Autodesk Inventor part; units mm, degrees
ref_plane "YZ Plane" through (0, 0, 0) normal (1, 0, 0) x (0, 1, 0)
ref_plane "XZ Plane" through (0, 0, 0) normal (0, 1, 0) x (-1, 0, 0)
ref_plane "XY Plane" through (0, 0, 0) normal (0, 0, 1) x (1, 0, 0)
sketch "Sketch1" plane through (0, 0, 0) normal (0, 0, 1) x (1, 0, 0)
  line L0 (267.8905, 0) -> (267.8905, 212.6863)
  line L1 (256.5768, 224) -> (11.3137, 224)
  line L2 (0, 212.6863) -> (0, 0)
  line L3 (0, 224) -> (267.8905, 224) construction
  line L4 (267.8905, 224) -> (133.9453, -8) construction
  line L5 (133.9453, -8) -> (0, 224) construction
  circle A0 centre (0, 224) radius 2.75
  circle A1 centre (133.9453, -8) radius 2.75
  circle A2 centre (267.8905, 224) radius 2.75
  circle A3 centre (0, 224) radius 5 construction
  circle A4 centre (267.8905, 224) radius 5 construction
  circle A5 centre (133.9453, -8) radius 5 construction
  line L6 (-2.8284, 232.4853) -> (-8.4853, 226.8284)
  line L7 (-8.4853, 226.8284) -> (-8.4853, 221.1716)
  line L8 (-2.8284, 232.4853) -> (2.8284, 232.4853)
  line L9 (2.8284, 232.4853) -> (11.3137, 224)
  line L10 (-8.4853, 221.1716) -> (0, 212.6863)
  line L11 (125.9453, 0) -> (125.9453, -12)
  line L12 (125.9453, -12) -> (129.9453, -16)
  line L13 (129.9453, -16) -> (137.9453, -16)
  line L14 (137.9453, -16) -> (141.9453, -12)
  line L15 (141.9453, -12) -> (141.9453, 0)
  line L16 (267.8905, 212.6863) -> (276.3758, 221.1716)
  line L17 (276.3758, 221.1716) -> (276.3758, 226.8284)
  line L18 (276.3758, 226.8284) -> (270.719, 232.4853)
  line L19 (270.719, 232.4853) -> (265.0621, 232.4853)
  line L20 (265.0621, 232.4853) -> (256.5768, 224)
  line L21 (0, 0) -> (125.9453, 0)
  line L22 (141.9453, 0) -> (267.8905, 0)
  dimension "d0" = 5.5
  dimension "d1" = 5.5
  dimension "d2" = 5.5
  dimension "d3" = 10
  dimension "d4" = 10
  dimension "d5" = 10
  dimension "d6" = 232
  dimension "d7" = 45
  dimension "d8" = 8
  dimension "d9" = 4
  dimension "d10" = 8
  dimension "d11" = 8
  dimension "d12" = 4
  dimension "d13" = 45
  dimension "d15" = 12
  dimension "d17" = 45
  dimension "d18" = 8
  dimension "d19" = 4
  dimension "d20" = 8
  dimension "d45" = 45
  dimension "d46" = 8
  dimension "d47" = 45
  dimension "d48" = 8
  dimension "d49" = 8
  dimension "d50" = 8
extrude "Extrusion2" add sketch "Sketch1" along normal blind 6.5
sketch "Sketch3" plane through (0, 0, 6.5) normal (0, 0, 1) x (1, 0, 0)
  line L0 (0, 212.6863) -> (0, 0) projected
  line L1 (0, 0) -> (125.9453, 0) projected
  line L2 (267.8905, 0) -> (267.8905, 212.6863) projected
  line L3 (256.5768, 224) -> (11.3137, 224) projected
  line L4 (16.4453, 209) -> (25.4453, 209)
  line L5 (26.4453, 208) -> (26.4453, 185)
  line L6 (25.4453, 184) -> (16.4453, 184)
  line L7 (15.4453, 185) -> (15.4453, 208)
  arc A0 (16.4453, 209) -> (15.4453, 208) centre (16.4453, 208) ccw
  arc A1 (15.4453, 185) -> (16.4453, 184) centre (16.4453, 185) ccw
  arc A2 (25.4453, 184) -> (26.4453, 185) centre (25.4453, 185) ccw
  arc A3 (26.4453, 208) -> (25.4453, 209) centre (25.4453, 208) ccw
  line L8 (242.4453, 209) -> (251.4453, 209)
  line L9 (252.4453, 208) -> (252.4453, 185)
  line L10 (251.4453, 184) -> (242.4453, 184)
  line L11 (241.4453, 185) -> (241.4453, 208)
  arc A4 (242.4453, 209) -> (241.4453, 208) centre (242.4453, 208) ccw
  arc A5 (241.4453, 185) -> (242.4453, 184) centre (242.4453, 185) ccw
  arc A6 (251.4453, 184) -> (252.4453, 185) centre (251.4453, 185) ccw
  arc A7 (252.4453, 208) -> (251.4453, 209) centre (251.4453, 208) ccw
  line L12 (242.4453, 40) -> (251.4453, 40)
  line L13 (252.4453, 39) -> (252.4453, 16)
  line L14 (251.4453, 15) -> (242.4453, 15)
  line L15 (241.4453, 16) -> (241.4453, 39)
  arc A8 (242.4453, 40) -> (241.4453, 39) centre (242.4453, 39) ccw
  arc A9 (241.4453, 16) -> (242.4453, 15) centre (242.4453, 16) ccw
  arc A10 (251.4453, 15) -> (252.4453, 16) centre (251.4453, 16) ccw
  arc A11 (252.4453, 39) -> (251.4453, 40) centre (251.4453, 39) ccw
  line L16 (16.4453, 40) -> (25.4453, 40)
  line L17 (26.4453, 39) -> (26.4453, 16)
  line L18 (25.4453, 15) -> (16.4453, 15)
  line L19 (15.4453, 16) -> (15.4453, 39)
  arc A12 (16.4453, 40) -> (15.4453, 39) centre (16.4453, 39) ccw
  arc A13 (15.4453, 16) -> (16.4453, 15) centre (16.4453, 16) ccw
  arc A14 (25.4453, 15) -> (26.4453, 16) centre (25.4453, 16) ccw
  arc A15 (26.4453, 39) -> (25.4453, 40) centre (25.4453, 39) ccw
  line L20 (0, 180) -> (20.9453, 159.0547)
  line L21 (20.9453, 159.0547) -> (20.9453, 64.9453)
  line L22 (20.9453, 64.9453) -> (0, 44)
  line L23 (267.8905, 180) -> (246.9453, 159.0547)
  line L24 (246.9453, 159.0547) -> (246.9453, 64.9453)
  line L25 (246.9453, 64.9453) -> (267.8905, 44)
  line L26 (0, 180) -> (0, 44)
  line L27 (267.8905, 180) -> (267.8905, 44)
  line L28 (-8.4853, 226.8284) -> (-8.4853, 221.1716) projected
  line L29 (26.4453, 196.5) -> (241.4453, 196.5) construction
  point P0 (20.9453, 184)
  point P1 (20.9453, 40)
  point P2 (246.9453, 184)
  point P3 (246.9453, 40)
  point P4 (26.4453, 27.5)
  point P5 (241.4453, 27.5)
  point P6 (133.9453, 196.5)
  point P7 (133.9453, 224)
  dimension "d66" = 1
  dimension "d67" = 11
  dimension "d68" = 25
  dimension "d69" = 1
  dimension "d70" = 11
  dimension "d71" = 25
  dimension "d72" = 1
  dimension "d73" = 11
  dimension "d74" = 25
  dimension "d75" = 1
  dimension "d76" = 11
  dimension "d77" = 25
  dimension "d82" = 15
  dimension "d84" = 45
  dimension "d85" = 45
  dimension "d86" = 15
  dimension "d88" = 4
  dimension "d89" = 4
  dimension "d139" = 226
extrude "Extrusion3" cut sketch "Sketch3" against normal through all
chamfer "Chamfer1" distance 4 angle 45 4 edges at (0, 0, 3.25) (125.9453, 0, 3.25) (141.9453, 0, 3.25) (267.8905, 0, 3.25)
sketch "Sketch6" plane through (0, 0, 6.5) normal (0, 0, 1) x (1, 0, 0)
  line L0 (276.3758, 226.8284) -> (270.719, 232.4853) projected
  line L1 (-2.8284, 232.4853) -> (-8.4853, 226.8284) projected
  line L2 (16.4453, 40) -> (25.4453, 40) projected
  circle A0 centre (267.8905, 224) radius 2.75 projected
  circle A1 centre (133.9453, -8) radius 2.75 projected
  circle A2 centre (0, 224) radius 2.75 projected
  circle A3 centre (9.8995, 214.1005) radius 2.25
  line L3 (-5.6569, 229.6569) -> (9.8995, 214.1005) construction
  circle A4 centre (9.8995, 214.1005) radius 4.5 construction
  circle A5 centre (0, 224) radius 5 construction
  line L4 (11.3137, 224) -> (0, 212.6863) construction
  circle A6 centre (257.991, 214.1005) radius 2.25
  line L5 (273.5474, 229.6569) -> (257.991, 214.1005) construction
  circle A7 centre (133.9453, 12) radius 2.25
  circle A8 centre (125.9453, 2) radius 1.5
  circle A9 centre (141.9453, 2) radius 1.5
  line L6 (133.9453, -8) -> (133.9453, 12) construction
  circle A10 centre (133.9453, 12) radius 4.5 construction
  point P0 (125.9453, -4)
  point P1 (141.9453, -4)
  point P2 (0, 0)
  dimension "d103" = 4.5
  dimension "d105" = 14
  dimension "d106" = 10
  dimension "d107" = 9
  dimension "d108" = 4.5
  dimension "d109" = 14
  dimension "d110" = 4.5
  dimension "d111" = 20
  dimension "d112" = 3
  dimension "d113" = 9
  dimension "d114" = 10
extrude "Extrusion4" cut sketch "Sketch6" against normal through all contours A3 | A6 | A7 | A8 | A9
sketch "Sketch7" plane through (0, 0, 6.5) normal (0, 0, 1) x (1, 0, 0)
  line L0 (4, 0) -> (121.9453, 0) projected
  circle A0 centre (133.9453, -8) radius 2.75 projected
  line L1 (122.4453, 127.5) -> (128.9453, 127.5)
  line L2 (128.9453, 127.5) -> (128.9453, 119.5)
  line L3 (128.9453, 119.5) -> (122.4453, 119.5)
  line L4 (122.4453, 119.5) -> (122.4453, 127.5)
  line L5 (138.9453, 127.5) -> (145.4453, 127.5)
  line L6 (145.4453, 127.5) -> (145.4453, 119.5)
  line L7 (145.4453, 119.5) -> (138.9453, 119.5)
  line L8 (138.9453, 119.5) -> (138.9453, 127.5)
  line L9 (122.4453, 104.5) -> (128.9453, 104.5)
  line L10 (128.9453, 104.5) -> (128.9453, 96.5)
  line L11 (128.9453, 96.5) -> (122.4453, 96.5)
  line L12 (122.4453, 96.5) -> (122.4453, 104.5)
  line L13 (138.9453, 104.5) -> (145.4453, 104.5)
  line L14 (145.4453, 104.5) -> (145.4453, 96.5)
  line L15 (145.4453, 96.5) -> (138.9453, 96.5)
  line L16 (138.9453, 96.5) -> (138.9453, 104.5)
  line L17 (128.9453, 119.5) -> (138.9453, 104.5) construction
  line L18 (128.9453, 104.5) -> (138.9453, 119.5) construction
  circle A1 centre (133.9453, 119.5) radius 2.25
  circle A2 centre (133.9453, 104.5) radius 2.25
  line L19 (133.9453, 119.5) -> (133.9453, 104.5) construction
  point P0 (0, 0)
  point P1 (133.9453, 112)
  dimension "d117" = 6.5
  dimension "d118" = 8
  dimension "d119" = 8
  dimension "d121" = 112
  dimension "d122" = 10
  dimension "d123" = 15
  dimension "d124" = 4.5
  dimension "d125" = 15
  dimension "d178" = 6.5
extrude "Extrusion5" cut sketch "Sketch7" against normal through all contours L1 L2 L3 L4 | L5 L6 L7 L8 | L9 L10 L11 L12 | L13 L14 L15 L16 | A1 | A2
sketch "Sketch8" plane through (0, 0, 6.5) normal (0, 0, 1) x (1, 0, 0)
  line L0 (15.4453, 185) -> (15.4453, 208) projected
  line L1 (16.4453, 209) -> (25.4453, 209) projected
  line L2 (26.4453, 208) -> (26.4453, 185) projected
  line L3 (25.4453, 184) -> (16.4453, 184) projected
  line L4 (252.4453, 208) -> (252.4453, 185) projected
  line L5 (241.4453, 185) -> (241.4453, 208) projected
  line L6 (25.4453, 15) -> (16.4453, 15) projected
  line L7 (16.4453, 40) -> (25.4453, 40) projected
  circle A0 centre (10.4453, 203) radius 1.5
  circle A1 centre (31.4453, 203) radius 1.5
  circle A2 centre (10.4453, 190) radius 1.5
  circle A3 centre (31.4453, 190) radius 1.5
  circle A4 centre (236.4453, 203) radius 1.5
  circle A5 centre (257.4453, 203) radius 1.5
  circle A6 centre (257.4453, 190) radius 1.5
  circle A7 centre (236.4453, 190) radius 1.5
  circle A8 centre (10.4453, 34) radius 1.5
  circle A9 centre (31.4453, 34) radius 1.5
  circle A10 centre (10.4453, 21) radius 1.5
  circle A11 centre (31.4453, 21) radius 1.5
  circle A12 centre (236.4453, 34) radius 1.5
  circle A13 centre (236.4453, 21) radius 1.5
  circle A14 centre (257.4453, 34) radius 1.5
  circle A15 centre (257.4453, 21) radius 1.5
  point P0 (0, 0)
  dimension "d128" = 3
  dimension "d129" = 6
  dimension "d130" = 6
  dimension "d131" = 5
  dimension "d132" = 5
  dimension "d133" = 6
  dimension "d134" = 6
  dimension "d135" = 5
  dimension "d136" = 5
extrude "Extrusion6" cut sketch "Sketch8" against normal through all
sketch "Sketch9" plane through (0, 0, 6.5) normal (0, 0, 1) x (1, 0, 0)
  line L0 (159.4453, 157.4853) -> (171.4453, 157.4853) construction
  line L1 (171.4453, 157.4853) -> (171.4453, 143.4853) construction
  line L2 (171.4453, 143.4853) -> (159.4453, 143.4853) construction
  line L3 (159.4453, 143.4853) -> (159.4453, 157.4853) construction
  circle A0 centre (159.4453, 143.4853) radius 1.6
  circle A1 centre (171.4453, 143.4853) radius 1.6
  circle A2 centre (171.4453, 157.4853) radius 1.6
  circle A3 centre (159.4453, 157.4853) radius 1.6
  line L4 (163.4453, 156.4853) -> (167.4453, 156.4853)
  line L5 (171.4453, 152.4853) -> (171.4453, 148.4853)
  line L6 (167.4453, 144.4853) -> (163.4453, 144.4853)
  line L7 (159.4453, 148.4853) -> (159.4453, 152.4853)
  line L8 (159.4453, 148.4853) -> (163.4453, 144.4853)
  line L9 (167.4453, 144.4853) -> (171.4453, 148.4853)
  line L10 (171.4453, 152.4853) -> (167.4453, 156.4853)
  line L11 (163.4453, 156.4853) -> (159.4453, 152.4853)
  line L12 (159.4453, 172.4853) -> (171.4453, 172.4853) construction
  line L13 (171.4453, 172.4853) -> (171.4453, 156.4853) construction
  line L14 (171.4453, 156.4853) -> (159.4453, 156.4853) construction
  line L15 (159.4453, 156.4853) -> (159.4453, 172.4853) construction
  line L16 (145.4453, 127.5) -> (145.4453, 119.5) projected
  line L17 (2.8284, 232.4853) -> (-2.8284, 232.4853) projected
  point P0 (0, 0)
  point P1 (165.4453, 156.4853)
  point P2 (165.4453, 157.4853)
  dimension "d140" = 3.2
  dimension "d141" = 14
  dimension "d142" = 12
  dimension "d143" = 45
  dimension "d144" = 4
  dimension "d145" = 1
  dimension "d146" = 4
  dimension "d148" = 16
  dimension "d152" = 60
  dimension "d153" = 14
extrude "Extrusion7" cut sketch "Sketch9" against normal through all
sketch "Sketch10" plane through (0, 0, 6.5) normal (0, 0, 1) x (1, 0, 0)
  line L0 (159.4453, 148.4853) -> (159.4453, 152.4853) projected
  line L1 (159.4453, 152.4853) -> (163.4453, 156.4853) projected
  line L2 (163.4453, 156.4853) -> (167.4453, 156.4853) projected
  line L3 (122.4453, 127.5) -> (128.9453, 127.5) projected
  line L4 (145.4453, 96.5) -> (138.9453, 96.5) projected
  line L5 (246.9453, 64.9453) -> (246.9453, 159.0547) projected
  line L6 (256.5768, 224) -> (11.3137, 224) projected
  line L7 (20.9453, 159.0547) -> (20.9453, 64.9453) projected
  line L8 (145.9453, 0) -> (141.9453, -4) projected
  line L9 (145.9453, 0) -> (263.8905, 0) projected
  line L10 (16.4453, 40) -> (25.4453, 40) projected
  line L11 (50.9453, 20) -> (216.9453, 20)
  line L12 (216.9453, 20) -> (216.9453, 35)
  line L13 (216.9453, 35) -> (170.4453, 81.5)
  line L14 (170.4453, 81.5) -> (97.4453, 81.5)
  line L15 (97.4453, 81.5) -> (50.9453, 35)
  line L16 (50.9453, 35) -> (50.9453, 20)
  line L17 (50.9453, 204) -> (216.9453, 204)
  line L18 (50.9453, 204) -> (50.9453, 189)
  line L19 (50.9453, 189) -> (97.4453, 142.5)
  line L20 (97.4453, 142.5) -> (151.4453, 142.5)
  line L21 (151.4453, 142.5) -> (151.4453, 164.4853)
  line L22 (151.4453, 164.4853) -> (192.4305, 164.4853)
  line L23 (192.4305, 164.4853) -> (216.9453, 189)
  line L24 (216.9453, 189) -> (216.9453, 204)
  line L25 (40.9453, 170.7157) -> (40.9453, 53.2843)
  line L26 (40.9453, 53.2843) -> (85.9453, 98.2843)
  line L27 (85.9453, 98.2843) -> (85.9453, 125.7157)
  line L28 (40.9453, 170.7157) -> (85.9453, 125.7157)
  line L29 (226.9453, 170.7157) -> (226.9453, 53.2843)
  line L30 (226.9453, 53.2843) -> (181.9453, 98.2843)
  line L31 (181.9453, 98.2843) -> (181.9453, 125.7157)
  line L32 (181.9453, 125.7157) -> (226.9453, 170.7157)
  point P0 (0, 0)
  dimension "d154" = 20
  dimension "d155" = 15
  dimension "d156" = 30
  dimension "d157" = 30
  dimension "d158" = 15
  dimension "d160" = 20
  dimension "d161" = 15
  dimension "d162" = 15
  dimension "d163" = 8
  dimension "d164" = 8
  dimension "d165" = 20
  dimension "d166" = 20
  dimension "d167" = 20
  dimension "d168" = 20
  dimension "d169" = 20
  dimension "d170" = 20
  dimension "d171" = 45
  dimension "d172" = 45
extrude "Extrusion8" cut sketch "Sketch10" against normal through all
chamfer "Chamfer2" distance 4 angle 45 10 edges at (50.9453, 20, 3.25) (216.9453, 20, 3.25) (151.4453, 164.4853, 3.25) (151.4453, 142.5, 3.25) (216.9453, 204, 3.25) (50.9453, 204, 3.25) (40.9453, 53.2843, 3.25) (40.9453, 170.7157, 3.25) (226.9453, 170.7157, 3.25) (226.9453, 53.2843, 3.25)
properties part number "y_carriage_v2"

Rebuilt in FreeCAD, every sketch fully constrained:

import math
import FreeCAD as App
import Part
import Sketcher
from FreeCAD import Vector


def edges_at(feature, points):
    """Names of the edges that pass closest to the given points."""
    edges = feature.Shape.Edges
    near = lambda p: min(range(len(edges)), key=lambda i: edges[i].distToShape(Part.Vertex(*p))[0])
    return sorted({f"Edge{near(p) + 1}" for p in points})


def add_polygon(sketch, points):
    """Adds a closed chain of lines whose ends are joined by coincident constraints."""
    first, n = sketch.GeometryCount, len(points)
    for a, b in zip(points, points[1:] + points[:1]):
        sketch.addGeometry(Part.LineSegment(App.Vector(*a, 0), App.Vector(*b, 0)), False)
    for i in range(n):
        sketch.addConstraint(Sketcher.Constraint("Coincident", first + i, 2, first + (i + 1) % n, 1))

doc = App.newDocument("Part")
body = doc.addObject("PartDesign::Body", "Body")

sketch1 = body.newObject("Sketcher::SketchObject", "Sketch")
sketch1.AttachmentSupport = (doc.getObject("XY_Plane"), [""])
sketch1.MapMode = "FlatFace"
add_polygon(sketch1, [(141.9453, 0), (267.8905, 0), (267.8905, 212.6863), (276.3758, 221.1716), (276.3758, 226.8284), (270.719, 232.4853), (265.0621, 232.4853), (256.5768, 224), (11.3137, 224), (2.8284, 232.4853), (-2.8284, 232.4853), (-8.4853, 226.8284), (-8.4853, 221.1716), (0, 212.6863), (0, 0), (125.9453, 0), (125.9453, -12), (129.9453, -16), (137.9453, -16), (141.9453, -12)])
sketch1.addGeometry(Part.Circle(Vector(133.9453, -8, 0), Vector(0, 0, 1), 2.75), False)
sketch1.addGeometry(Part.Circle(Vector(0, 224, 0), Vector(0, 0, 1), 2.75), False)
sketch1.addGeometry(Part.Circle(Vector(267.8905, 224, 0), Vector(0, 0, 1), 2.75), False)
sketch1.addConstraint([
    Sketcher.Constraint("Horizontal", 0),
    Sketcher.Constraint("Vertical", 1),
    Sketcher.Constraint("Vertical", 3),
    Sketcher.Constraint("Horizontal", 5),
    Sketcher.Constraint("Horizontal", 7),
    Sketcher.Constraint("Horizontal", 9),
    Sketcher.Constraint("Vertical", 11),
    Sketcher.Constraint("Vertical", 13),
    Sketcher.Constraint("Horizontal", 14),
    Sketcher.Constraint("Vertical", 15),
    Sketcher.Constraint("Horizontal", 17),
    Sketcher.Constraint("Vertical", 19),
    Sketcher.Constraint("Coincident", 13, 2, -1, 1),
    Sketcher.Constraint("Equal", 20, 21),
    Sketcher.Constraint("Equal", 21, 22),
    Sketcher.Constraint("PointOnObject", 21, 3, -2),
    Sketcher.Constraint("PointOnObject", 0, 2, -1),
    Sketcher.Constraint("Perpendicular", 2, 4),
    Sketcher.Constraint("Perpendicular", 4, 6),
    Sketcher.Constraint("Perpendicular", 6, 8),
    Sketcher.Constraint("Perpendicular", 8, 10),
    Sketcher.Constraint("Perpendicular", 10, 12),
    Sketcher.Constraint("Parallel", 12, 16),
    Sketcher.Constraint("Perpendicular", 16, 18),
    Sketcher.Constraint("Horizontal", 21, 3, 22, 3),
    Sketcher.Constraint("Horizontal", 22, 3, 6, 2),
    Sketcher.Constraint("Horizontal", 5, 2, 8, 2),
    Sketcher.Constraint("Horizontal", 3, 2, 10, 2),
    Sketcher.Constraint("Horizontal", 2, 2, 11, 2),
    Sketcher.Constraint("Horizontal", 1, 2, 12, 2),
    Sketcher.Constraint("Horizontal", 15, 2, 18, 2),
    Sketcher.Constraint("Vertical", 22, 3, 0, 2),
    Sketcher.Constraint("Equal", 5, 9),
    Sketcher.Constraint("Equal", 0, 14),
    Sketcher.Constraint("Equal", 9, 3),
    Sketcher.Constraint("Equal", 2, 6),
    Sketcher.Constraint("Equal", 6, 8),
    Sketcher.Constraint("Diameter", 20, 5.5),
    Sketcher.Constraint("DistanceX", 17, 1, 17, 2, 8.0),
    Sketcher.Constraint("DistanceY", 15, 2, 15, 1, 12.0),
    Sketcher.Constraint("Distance", 2, 12.0),
    Sketcher.Constraint("Distance", 4, 8.0),
    Sketcher.Constraint("DistanceY", 20, 3, -1, 1, 8.0),
    Sketcher.Constraint("DistanceY", 20, 3, 21, 3, 232.0),
    Sketcher.Constraint("DistanceX", 14, 2, 20, 3, 8.0),
    Sketcher.Constraint("DistanceX", 15, 2, 16, 2, 4.0),
    Sketcher.Constraint("DistanceX", 5, 2, 5, 1, 5.657),
    Sketcher.Constraint("DistanceX", 7, 2, 7, 1, 245.263),
])
pad1 = body.newObject("PartDesign::Pad", "Pad")
pad1.Profile = sketch1
pad1.Length = 6.5

sketch2 = body.newObject("Sketcher::SketchObject", "Sketch001")
sketch2.AttachmentSupport = (doc.getObject("XY_Plane"), [""])
sketch2.MapMode = "FlatFace"
sketch2.AttachmentOffset = App.Placement(Vector(0, 0, 6.5), App.Rotation())
add_polygon(sketch2, [(20.9453, 159.0547), (0, 180), (0, 44), (20.9453, 64.9453)])
add_polygon(sketch2, [(246.9453, 64.9453), (267.8905, 44), (267.8905, 180), (246.9453, 159.0547)])
sketch2.addGeometry(Part.LineSegment(Vector(25.4453, 209, 0), Vector(16.4453, 209, 0)), False)
sketch2.addGeometry(Part.ArcOfCircle(Part.Circle(Vector(16.4453, 208, 0), Vector(0, 0, 1), 1), math.radians(90), math.radians(180)), False)
sketch2.addGeometry(Part.LineSegment(Vector(15.4453, 208, 0), Vector(15.4453, 185, 0)), False)
sketch2.addGeometry(Part.ArcOfCircle(Part.Circle(Vector(16.4453, 185, 0), Vector(0, 0, 1), 1), math.radians(180), math.radians(270)), False)
sketch2.addGeometry(Part.LineSegment(Vector(16.4453, 184, 0), Vector(25.4453, 184, 0)), False)
sketch2.addGeometry(Part.ArcOfCircle(Part.Circle(Vector(25.4453, 185, 0), Vector(0, 0, 1), 1), math.radians(-90), math.radians(0)), False)
sketch2.addGeometry(Part.LineSegment(Vector(26.4453, 185, 0), Vector(26.4453, 208, 0)), False)
sketch2.addGeometry(Part.ArcOfCircle(Part.Circle(Vector(25.4453, 208, 0), Vector(0, 0, 1), 1), math.radians(0), math.radians(90)), False)
sketch2.addGeometry(Part.LineSegment(Vector(251.4453, 209, 0), Vector(242.4453, 209, 0)), False)
sketch2.addGeometry(Part.ArcOfCircle(Part.Circle(Vector(242.4453, 208, 0), Vector(0, 0, 1), 1), math.radians(90), math.radians(180)), False)
sketch2.addGeometry(Part.LineSegment(Vector(241.4453, 208, 0), Vector(241.4453, 185, 0)), False)
sketch2.addGeometry(Part.ArcOfCircle(Part.Circle(Vector(242.4453, 185, 0), Vector(0, 0, 1), 1), math.radians(180), math.radians(270)), False)
sketch2.addGeometry(Part.LineSegment(Vector(242.4453, 184, 0), Vector(251.4453, 184, 0)), False)
sketch2.addGeometry(Part.ArcOfCircle(Part.Circle(Vector(251.4453, 185, 0), Vector(0, 0, 1), 1), math.radians(-90), math.radians(0)), False)
sketch2.addGeometry(Part.LineSegment(Vector(252.4453, 185, 0), Vector(252.4453, 208, 0)), False)
sketch2.addGeometry(Part.ArcOfCircle(Part.Circle(Vector(251.4453, 208, 0), Vector(0, 0, 1), 1), math.radians(0), math.radians(90)), False)
sketch2.addGeometry(Part.LineSegment(Vector(251.4453, 40, 0), Vector(242.4453, 40, 0)), False)
sketch2.addGeometry(Part.ArcOfCircle(Part.Circle(Vector(242.4453, 39, 0), Vector(0, 0, 1), 1), math.radians(90), math.radians(180)), False)
sketch2.addGeometry(Part.LineSegment(Vector(241.4453, 39, 0), Vector(241.4453, 16, 0)), False)
sketch2.addGeometry(Part.ArcOfCircle(Part.Circle(Vector(242.4453, 16, 0), Vector(0, 0, 1), 1), math.radians(180), math.radians(270)), False)
sketch2.addGeometry(Part.LineSegment(Vector(242.4453, 15, 0), Vector(251.4453, 15, 0)), False)
sketch2.addGeometry(Part.ArcOfCircle(Part.Circle(Vector(251.4453, 16, 0), Vector(0, 0, 1), 1), math.radians(-90), math.radians(0)), False)
sketch2.addGeometry(Part.LineSegment(Vector(252.4453, 16, 0), Vector(252.4453, 39, 0)), False)
sketch2.addGeometry(Part.ArcOfCircle(Part.Circle(Vector(251.4453, 39, 0), Vector(0, 0, 1), 1), math.radians(0), math.radians(90)), False)
sketch2.addGeometry(Part.LineSegment(Vector(25.4453, 40, 0), Vector(16.4453, 40, 0)), False)
sketch2.addGeometry(Part.ArcOfCircle(Part.Circle(Vector(16.4453, 39, 0), Vector(0, 0, 1), 1), math.radians(90), math.radians(180)), False)
sketch2.addGeometry(Part.LineSegment(Vector(15.4453, 39, 0), Vector(15.4453, 16, 0)), False)
sketch2.addGeometry(Part.ArcOfCircle(Part.Circle(Vector(16.4453, 16, 0), Vector(0, 0, 1), 1), math.radians(180), math.radians(270)), False)
sketch2.addGeometry(Part.LineSegment(Vector(16.4453, 15, 0), Vector(25.4453, 15, 0)), False)
sketch2.addGeometry(Part.ArcOfCircle(Part.Circle(Vector(25.4453, 16, 0), Vector(0, 0, 1), 1), math.radians(-90), math.radians(0)), False)
sketch2.addGeometry(Part.LineSegment(Vector(26.4453, 16, 0), Vector(26.4453, 39, 0)), False)
sketch2.addGeometry(Part.ArcOfCircle(Part.Circle(Vector(25.4453, 39, 0), Vector(0, 0, 1), 1), math.radians(0), math.radians(90)), False)
sketch2.addConstraint([
    Sketcher.Constraint("Tangent", 8, 2, 9, 1),
    Sketcher.Constraint("Tangent", 9, 2, 10, 1),
    Sketcher.Constraint("Tangent", 10, 2, 11, 1),
    Sketcher.Constraint("Tangent", 11, 2, 12, 1),
    Sketcher.Constraint("Tangent", 12, 2, 13, 1),
    Sketcher.Constraint("Tangent", 13, 2, 14, 1),
    Sketcher.Constraint("Tangent", 14, 2, 15, 1),
    Sketcher.Constraint("Tangent", 15, 2, 8, 1),
    Sketcher.Constraint("Tangent", 16, 2, 17, 1),
    Sketcher.Constraint("Tangent", 17, 2, 18, 1),
    Sketcher.Constraint("Tangent", 18, 2, 19, 1),
    Sketcher.Constraint("Tangent", 19, 2, 20, 1),
    Sketcher.Constraint("Tangent", 20, 2, 21, 1),
    Sketcher.Constraint("Tangent", 21, 2, 22, 1),
    Sketcher.Constraint("Tangent", 22, 2, 23, 1),
    Sketcher.Constraint("Tangent", 23, 2, 16, 1),
    Sketcher.Constraint("Tangent", 24, 2, 25, 1),
    Sketcher.Constraint("Tangent", 25, 2, 26, 1),
    Sketcher.Constraint("Tangent", 26, 2, 27, 1),
    Sketcher.Constraint("Tangent", 27, 2, 28, 1),
    Sketcher.Constraint("Tangent", 28, 2, 29, 1),
    Sketcher.Constraint("Tangent", 29, 2, 30, 1),
    Sketcher.Constraint("Tangent", 30, 2, 31, 1),
    Sketcher.Constraint("Tangent", 31, 2, 24, 1),
    Sketcher.Constraint("Tangent", 32, 2, 33, 1),
    Sketcher.Constraint("Tangent", 33, 2, 34, 1),
    Sketcher.Constraint("Tangent", 34, 2, 35, 1),
    Sketcher.Constraint("Tangent", 35, 2, 36, 1),
    Sketcher.Constraint("Tangent", 36, 2, 37, 1),
    Sketcher.Constraint("Tangent", 37, 2, 38, 1),
    Sketcher.Constraint("Tangent", 38, 2, 39, 1),
    Sketcher.Constraint("Tangent", 39, 2, 32, 1),
    Sketcher.Constraint("Vertical", 1),
    Sketcher.Constraint("Vertical", 3),
    Sketcher.Constraint("Vertical", 5),
    Sketcher.Constraint("Vertical", 7),
    Sketcher.Constraint("Horizontal", 8),
    Sketcher.Constraint("Vertical", 10),
    Sketcher.Constraint("Horizontal", 12),
    Sketcher.Constraint("Vertical", 14),
    Sketcher.Constraint("Horizontal", 16),
    Sketcher.Constraint("Vertical", 18),
    Sketcher.Constraint("Horizontal", 20),
    Sketcher.Constraint("Vertical", 22),
    Sketcher.Constraint("Horizontal", 24),
    Sketcher.Constraint("Vertical", 26),
    Sketcher.Constraint("Horizontal", 28),
    Sketcher.Constraint("Vertical", 30),
    Sketcher.Constraint("Horizontal", 32),
    Sketcher.Constraint("Vertical", 34),
    Sketcher.Constraint("Horizontal", 36),
    Sketcher.Constraint("Vertical", 38),
    Sketcher.Constraint("Equal", 9, 11),
    Sketcher.Constraint("Equal", 11, 13),
    Sketcher.Constraint("Equal", 13, 15),
    Sketcher.Constraint("Equal", 15, 17),
    Sketcher.Constraint("Equal", 17, 19),
    Sketcher.Constraint("Equal", 19, 21),
    Sketcher.Constraint("Equal", 21, 23),
    Sketcher.Constraint("Equal", 23, 25),
    Sketcher.Constraint("Equal", 25, 27),
    Sketcher.Constraint("Equal", 27, 29),
    Sketcher.Constraint("Equal", 29, 31),
    Sketcher.Constraint("Equal", 31, 33),
    Sketcher.Constraint("Equal", 33, 35),
    Sketcher.Constraint("Equal", 35, 37),
    Sketcher.Constraint("Equal", 37, 39),
    Sketcher.Constraint("PointOnObject", 0, 2, -2),
    Sketcher.Constraint("Perpendicular", 0, 2),
    Sketcher.Constraint("Perpendicular", 2, 4),
    Sketcher.Constraint("Perpendicular", 4, 6),
    Sketcher.Constraint("Horizontal", 15, 3, 17, 3),
    Sketcher.Constraint("Horizontal", 13, 3, 19, 3),
    Sketcher.Constraint("Horizontal", 31, 3, 33, 3),
    Sketcher.Constraint("Horizontal", 29, 3, 35, 3),
    Sketcher.Constraint("Horizontal", 1, 2, 4, 2),
    Sketcher.Constraint("Horizontal", 0, 2, 5, 2),
    Sketcher.Constraint("Horizontal", 3, 2, 6, 2),
    Sketcher.Constraint("Horizontal", 2, 2, 7, 2),
    Sketcher.Constraint("Vertical", 19, 3, 25, 3),
    Sketcher.Constraint("Vertical", 23, 3, 29, 3),
    Sketcher.Constraint("Vertical", 11, 3, 33, 3),
    Sketcher.Constraint("Vertical", 15, 3, 37, 3),
    Sketcher.Constraint("Equal", 12, 16),
    Sketcher.Constraint("Equal", 22, 26),
    Sketcher.Constraint("Radius", 9, 1.0),
    Sketcher.Constraint("DistanceY", -1, 1, 27, 2, 15.0),
    Sketcher.Constraint("DistanceX", 9, 3, 17, 3, 226.0),
    Sketcher.Constraint("DistanceY", 0, 2, 11, 2, 4.0),
    Sketcher.Constraint("DistanceX", 10, 2, 13, 2, 11.0),
    Sketcher.Constraint("DistanceY", 32, 2, 1, 2, 4.0),
    Sketcher.Constraint("DistanceY", 1, 2, 1, 1, 136.0),
    Sketcher.Constraint("DistanceY", 10, 2, 10, 1, 23.0),
    Sketcher.Constraint("DistanceX", 33, 3, 2, 2, 4.5),
    Sketcher.Constraint("DistanceX", 19, 3, 6, 2, 4.5),
    Sketcher.Constraint("Distance", 4, 29.621),
])
pocket1 = body.newObject("PartDesign::Pocket", "Pocket")
pocket1.Profile = sketch2
pocket1.Type = "ThroughAll"
doc.recompute()

chamfer = body.newObject("PartDesign::Chamfer", "Chamfer")
chamfer.Base = (pocket1, edges_at(pocket1, [
    (0, 0, 3.25),
    (125.945, 0, 3.25),
    (141.945, 0, 3.25),
    (267.89, 0, 3.25),
]))
chamfer.Size = 4

sketch3 = body.newObject("Sketcher::SketchObject", "Sketch002")
sketch3.AttachmentSupport = (doc.getObject("XY_Plane"), [""])
sketch3.MapMode = "FlatFace"
sketch3.AttachmentOffset = App.Placement(Vector(0, 0, 6.5), App.Rotation())
sketch3.addGeometry([
    Part.Circle(Vector(9.8995, 214.1005, 0), Vector(0, 0, 1), 2.25),
    Part.Circle(Vector(257.991, 214.1005, 0), Vector(0, 0, 1), 2.25),
    Part.Circle(Vector(133.9453, 12, 0), Vector(0, 0, 1), 2.25),
    Part.Circle(Vector(125.9453, 2, 0), Vector(0, 0, 1), 1.5),
    Part.Circle(Vector(141.9453, 2, 0), Vector(0, 0, 1), 1.5),
], False)
sketch3.addConstraint([
    Sketcher.Constraint("Equal", 0, 1),
    Sketcher.Constraint("Equal", 1, 2),
    Sketcher.Constraint("Equal", 3, 4),
    Sketcher.Constraint("Horizontal", 0, 3, 1, 3),
    Sketcher.Constraint("Horizontal", 3, 3, 4, 3),
    Sketcher.Constraint("Diameter", 3, 3.0),
    Sketcher.Constraint("Diameter", 0, 4.5),
    Sketcher.Constraint("DistanceY", 3, 3, 2, 3, 10.0),
    Sketcher.Constraint("DistanceY", -1, 1, 2, 3, 12.0),
    Sketcher.Constraint("DistanceX", 3, 3, 2, 3, 8.0),
    Sketcher.Constraint("DistanceX", 2, 3, 4, 3, 8.0),
    Sketcher.Constraint("DistanceX", -1, 1, 1, 3, 257.991),
    Sketcher.Constraint("DistanceX", -1, 1, 0, 3, 9.8995),
    Sketcher.Constraint("DistanceY", -1, 1, 0, 3, 214.1005),
    Sketcher.Constraint("DistanceX", -1, 1, 2, 3, 133.9453),
])
pocket2 = body.newObject("PartDesign::Pocket", "Pocket001")
pocket2.Profile = sketch3
pocket2.Type = "ThroughAll"

sketch4 = body.newObject("Sketcher::SketchObject", "Sketch003")
sketch4.AttachmentSupport = (doc.getObject("XY_Plane"), [""])
sketch4.MapMode = "FlatFace"
sketch4.AttachmentOffset = App.Placement(Vector(0, 0, 6.5), App.Rotation())
add_polygon(sketch4, [(128.9453, 127.5), (122.4453, 127.5), (122.4453, 119.5), (128.9453, 119.5)])
add_polygon(sketch4, [(145.4453, 127.5), (138.9453, 127.5), (138.9453, 119.5), (145.4453, 119.5)])
add_polygon(sketch4, [(128.9453, 104.5), (122.4453, 104.5), (122.4453, 96.5), (128.9453, 96.5)])
add_polygon(sketch4, [(145.4453, 104.5), (138.9453, 104.5), (138.9453, 96.5), (145.4453, 96.5)])
sketch4.addGeometry(Part.Circle(Vector(133.9453, 119.5, 0), Vector(0, 0, 1), 2.25), False)
sketch4.addGeometry(Part.Circle(Vector(133.9453, 104.5, 0), Vector(0, 0, 1), 2.25), False)
sketch4.addConstraint([
    Sketcher.Constraint("Horizontal", 0),
    Sketcher.Constraint("Vertical", 1),
    Sketcher.Constraint("Horizontal", 2),
    Sketcher.Constraint("Vertical", 3),
    Sketcher.Constraint("Horizontal", 4),
    Sketcher.Constraint("Vertical", 5),
    Sketcher.Constraint("Horizontal", 6),
    Sketcher.Constraint("Vertical", 7),
    Sketcher.Constraint("Horizontal", 8),
    Sketcher.Constraint("Vertical", 9),
    Sketcher.Constraint("Horizontal", 10),
    Sketcher.Constraint("Vertical", 11),
    Sketcher.Constraint("Horizontal", 12),
    Sketcher.Constraint("Vertical", 13),
    Sketcher.Constraint("Horizontal", 14),
    Sketcher.Constraint("Vertical", 15),
    Sketcher.Constraint("Equal", 16, 17),
    Sketcher.Constraint("Horizontal", 16, 3, 1, 2),
    Sketcher.Constraint("Horizontal", 3, 2, 4, 2),
    Sketcher.Constraint("Horizontal", 2, 2, 5, 2),
    Sketcher.Constraint("Horizontal", 17, 3, 8, 2),
    Sketcher.Constraint("Horizontal", 11, 2, 12, 2),
    Sketcher.Constraint("Horizontal", 10, 2, 13, 2),
    Sketcher.Constraint("Vertical", 16, 3, 17, 3),
    Sketcher.Constraint("Vertical", 1, 2, 8, 2),
    Sketcher.Constraint("Vertical", 3, 2, 10, 2),
    Sketcher.Constraint("Vertical", 5, 2, 12, 2),
    Sketcher.Constraint("Vertical", 7, 2, 14, 2),
    Sketcher.Constraint("Equal", 2, 4),
    Sketcher.Constraint("Equal", 7, 9),
    Sketcher.Constraint("Diameter", 16, 4.5),
    Sketcher.Constraint("DistanceY", 1, 2, 1, 1, 8.0),
    Sketcher.Constraint("DistanceX", 0, 2, 0, 1, 6.5),
    Sketcher.Constraint("DistanceY", 17, 3, 16, 3, 15.0),
    Sketcher.Constraint("DistanceX", 3, 2, 4, 2, 10.0),
    Sketcher.Constraint("DistanceX", 2, 2, 16, 3, 5.0),
    Sketcher.Constraint("DistanceY", -1, 1, 16, 3, 119.5),
    Sketcher.Constraint("DistanceX", -1, 1, 16, 3, 133.9453),
])
pocket3 = body.newObject("PartDesign::Pocket", "Pocket002")
pocket3.Profile = sketch4
pocket3.Type = "ThroughAll"

sketch5 = body.newObject("Sketcher::SketchObject", "Sketch004")
sketch5.AttachmentSupport = (doc.getObject("XY_Plane"), [""])
sketch5.MapMode = "FlatFace"
sketch5.AttachmentOffset = App.Placement(Vector(0, 0, 6.5), App.Rotation())
sketch5.addGeometry([
    Part.Circle(Vector(10.4453, 203, 0), Vector(0, 0, 1), 1.5),
    Part.Circle(Vector(31.4453, 203, 0), Vector(0, 0, 1), 1.5),
    Part.Circle(Vector(10.4453, 190, 0), Vector(0, 0, 1), 1.5),
    Part.Circle(Vector(31.4453, 190, 0), Vector(0, 0, 1), 1.5),
    Part.Circle(Vector(236.4453, 203, 0), Vector(0, 0, 1), 1.5),
    Part.Circle(Vector(257.4453, 203, 0), Vector(0, 0, 1), 1.5),
    Part.Circle(Vector(257.4453, 190, 0), Vector(0, 0, 1), 1.5),
    Part.Circle(Vector(236.4453, 190, 0), Vector(0, 0, 1), 1.5),
    Part.Circle(Vector(10.4453, 34, 0), Vector(0, 0, 1), 1.5),
    Part.Circle(Vector(31.4453, 34, 0), Vector(0, 0, 1), 1.5),
    Part.Circle(Vector(10.4453, 21, 0), Vector(0, 0, 1), 1.5),
    Part.Circle(Vector(31.4453, 21, 0), Vector(0, 0, 1), 1.5),
    Part.Circle(Vector(236.4453, 34, 0), Vector(0, 0, 1), 1.5),
    Part.Circle(Vector(236.4453, 21, 0), Vector(0, 0, 1), 1.5),
    Part.Circle(Vector(257.4453, 34, 0), Vector(0, 0, 1), 1.5),
    Part.Circle(Vector(257.4453, 21, 0), Vector(0, 0, 1), 1.5),
], False)
sketch5.addConstraint([
    Sketcher.Constraint("Equal", 0, 1),
    Sketcher.Constraint("Equal", 1, 2),
    Sketcher.Constraint("Equal", 2, 3),
    Sketcher.Constraint("Equal", 3, 4),
    Sketcher.Constraint("Equal", 4, 5),
    Sketcher.Constraint("Equal", 5, 6),
    Sketcher.Constraint("Equal", 6, 7),
    Sketcher.Constraint("Equal", 7, 8),
    Sketcher.Constraint("Equal", 8, 9),
    Sketcher.Constraint("Equal", 9, 10),
    Sketcher.Constraint("Equal", 10, 11),
    Sketcher.Constraint("Equal", 11, 12),
    Sketcher.Constraint("Equal", 12, 13),
    Sketcher.Constraint("Equal", 13, 14),
    Sketcher.Constraint("Equal", 14, 15),
    Sketcher.Constraint("Horizontal", 0, 3, 1, 3),
    Sketcher.Constraint("Horizontal", 2, 3, 3, 3),
    Sketcher.Constraint("Horizontal", 1, 3, 4, 3),
    Sketcher.Constraint("Horizontal", 4, 3, 5, 3),
    Sketcher.Constraint("Horizontal", 3, 3, 6, 3),
    Sketcher.Constraint("Horizontal", 6, 3, 7, 3),
    Sketcher.Constraint("Horizontal", 8, 3, 9, 3),
    Sketcher.Constraint("Horizontal", 10, 3, 11, 3),
    Sketcher.Constraint("Horizontal", 9, 3, 12, 3),
    Sketcher.Constraint("Horizontal", 11, 3, 13, 3),
    Sketcher.Constraint("Horizontal", 12, 3, 14, 3),
    Sketcher.Constraint("Horizontal", 13, 3, 15, 3),
    Sketcher.Constraint("Vertical", 0, 3, 2, 3),
    Sketcher.Constraint("Vertical", 1, 3, 3, 3),
    Sketcher.Constraint("Vertical", 5, 3, 6, 3),
    Sketcher.Constraint("Vertical", 4, 3, 7, 3),
    Sketcher.Constraint("Vertical", 2, 3, 8, 3),
    Sketcher.Constraint("Vertical", 3, 3, 9, 3),
    Sketcher.Constraint("Vertical", 8, 3, 10, 3),
    Sketcher.Constraint("Vertical", 9, 3, 11, 3),
    Sketcher.Constraint("Vertical", 7, 3, 12, 3),
    Sketcher.Constraint("Vertical", 12, 3, 13, 3),
    Sketcher.Constraint("Vertical", 6, 3, 14, 3),
    Sketcher.Constraint("Vertical", 14, 3, 15, 3),
    Sketcher.Constraint("Diameter", 0, 3.0),
    Sketcher.Constraint("DistanceY", -1, 1, 0, 3, 203.0),
    Sketcher.Constraint("DistanceY", -1, 1, 2, 3, 190.0),
    Sketcher.Constraint("DistanceY", -1, 1, 8, 3, 34.0),
    Sketcher.Constraint("DistanceY", -1, 1, 10, 3, 21.0),
    Sketcher.Constraint("DistanceX", 0, 3, 1, 3, 21.0),
    Sketcher.Constraint("DistanceX", 1, 3, 4, 3, 205.0),
    Sketcher.Constraint("DistanceX", 4, 3, 5, 3, 21.0),
    Sketcher.Constraint("DistanceX", -1, 1, 0, 3, 10.4453),
])
pocket4 = body.newObject("PartDesign::Pocket", "Pocket003")
pocket4.Profile = sketch5
pocket4.Type = "ThroughAll"

sketch6 = body.newObject("Sketcher::SketchObject", "Sketch005")
sketch6.AttachmentSupport = (doc.getObject("XY_Plane"), [""])
sketch6.MapMode = "FlatFace"
sketch6.AttachmentOffset = App.Placement(Vector(0, 0, 6.5), App.Rotation())
sketch6.addGeometry(Part.Circle(Vector(159.4453, 143.4853, 0), Vector(0, 0, 1), 1.6), False)
sketch6.addGeometry(Part.Circle(Vector(171.4453, 143.4853, 0), Vector(0, 0, 1), 1.6), False)
sketch6.addGeometry(Part.Circle(Vector(171.4453, 157.4853, 0), Vector(0, 0, 1), 1.6), False)
sketch6.addGeometry(Part.Circle(Vector(159.4453, 157.4853, 0), Vector(0, 0, 1), 1.6), False)
add_polygon(sketch6, [(167.4453, 156.4853), (163.4453, 156.4853), (159.4453, 152.4853), (159.4453, 148.4853), (163.4453, 144.4853), (167.4453, 144.4853), (171.4453, 148.4853), (171.4453, 152.4853)])
sketch6.addConstraint([
    Sketcher.Constraint("Horizontal", 4),
    Sketcher.Constraint("Vertical", 6),
    Sketcher.Constraint("Horizontal", 8),
    Sketcher.Constraint("Vertical", 10),
    Sketcher.Constraint("Equal", 0, 1),
    Sketcher.Constraint("Equal", 1, 2),
    Sketcher.Constraint("Equal", 2, 3),
    Sketcher.Constraint("Perpendicular", 5, 7),
    Sketcher.Constraint("Perpendicular", 7, 9),
    Sketcher.Constraint("Perpendicular", 9, 11),
    Sketcher.Constraint("Horizontal", 0, 3, 1, 3),
    Sketcher.Constraint("Horizontal", 2, 3, 3, 3),
    Sketcher.Constraint("Horizontal", 6, 2, 9, 2),
    Sketcher.Constraint("Horizontal", 5, 2, 10, 2),
    Sketcher.Constraint("Vertical", 1, 3, 2, 3),
    Sketcher.Constraint("Vertical", 0, 3, 3, 3),
    Sketcher.Constraint("Vertical", 3, 3, 5, 2),
    Sketcher.Constraint("Vertical", 4, 2, 7, 2),
    Sketcher.Constraint("Vertical", 2, 3, 9, 2),
    Sketcher.Constraint("Vertical", 8, 2, 11, 2),
    Sketcher.Constraint("Equal", 8, 6),
    Sketcher.Constraint("Diameter", 0, 3.2),
    Sketcher.Constraint("DistanceX", 4, 2, 4, 1, 4.0),
    Sketcher.Constraint("DistanceX", 0, 3, 1, 3, 12.0),
    Sketcher.Constraint("DistanceY", 1, 3, 2, 3, 14.0),
    Sketcher.Constraint("DistanceY", 4, 2, 3, 3, 1.0),
    Sketcher.Constraint("DistanceX", -1, 1, 0, 3, 159.4453),
    Sketcher.Constraint("DistanceY", -1, 1, 0, 3, 143.4853),
])
pocket5 = body.newObject("PartDesign::Pocket", "Pocket004")
pocket5.Profile = sketch6
pocket5.Type = "ThroughAll"

sketch7 = body.newObject("Sketcher::SketchObject", "Sketch006")
sketch7.AttachmentSupport = (doc.getObject("XY_Plane"), [""])
sketch7.MapMode = "FlatFace"
sketch7.AttachmentOffset = App.Placement(Vector(0, 0, 6.5), App.Rotation())
add_polygon(sketch7, [(50.9453, 35), (50.9453, 20), (216.9453, 20), (216.9453, 35), (170.4453, 81.5), (97.4453, 81.5)])
add_polygon(sketch7, [(216.9453, 204), (50.9453, 204), (50.9453, 189), (97.4453, 142.5), (151.4453, 142.5), (151.4453, 164.4853), (192.4305, 164.4853), (216.9453, 189)])
add_polygon(sketch7, [(85.9453, 125.7157), (40.9453, 170.7157), (40.9453, 53.2843), (85.9453, 98.2843)])
add_polygon(sketch7, [(226.9453, 53.2843), (226.9453, 170.7157), (181.9453, 125.7157), (181.9453, 98.2843)])
sketch7.addConstraint([
    Sketcher.Constraint("Vertical", 0),
    Sketcher.Constraint("Horizontal", 1),
    Sketcher.Constraint("Vertical", 2),
    Sketcher.Constraint("Horizontal", 4),
    Sketcher.Constraint("Horizontal", 6),
    Sketcher.Constraint("Vertical", 7),
    Sketcher.Constraint("Horizontal", 9),
    Sketcher.Constraint("Vertical", 10),
    Sketcher.Constraint("Horizontal", 11),
    Sketcher.Constraint("Vertical", 13),
    Sketcher.Constraint("Vertical", 15),
    Sketcher.Constraint("Vertical", 17),
    Sketcher.Constraint("Vertical", 18),
    Sketcher.Constraint("Vertical", 20),
    Sketcher.Constraint("Perpendicular", 3, 5),
    Sketcher.Constraint("Perpendicular", 5, 8),
    Sketcher.Constraint("Perpendicular", 8, 12),
    Sketcher.Constraint("Perpendicular", 12, 14),
    Sketcher.Constraint("Perpendicular", 14, 16),
    Sketcher.Constraint("Parallel", 16, 19),
    Sketcher.Constraint("Perpendicular", 19, 21),
    Sketcher.Constraint("Horizontal", 2, 2, 5, 2),
    Sketcher.Constraint("Horizontal", 7, 2, 12, 2),
    Sketcher.Constraint("Horizontal", 14, 2, 18, 2),
    Sketcher.Constraint("Horizontal", 17, 2, 19, 2),
    Sketcher.Constraint("Horizontal", 16, 2, 20, 2),
    Sketcher.Constraint("Horizontal", 15, 2, 21, 2),
    Sketcher.Constraint("Vertical", 5, 2, 6, 2),
    Sketcher.Constraint("Vertical", 4, 2, 8, 2),
    Sketcher.Constraint("Vertical", 2, 2, 12, 2),
    Sketcher.Constraint("Equal", 2, 7),
    Sketcher.Constraint("DistanceY", 0, 2, 0, 1, 15.0),
    Sketcher.Constraint("DistanceY", -1, 1, 0, 2, 20.0),
    Sketcher.Constraint("DistanceX", 15, 2, 16, 2, 45.0),
    Sketcher.Constraint("DistanceX", 1, 1, 1, 2, 166.0),
    Sketcher.Constraint("DistanceX", 4, 2, 4, 1, 73.0),
    Sketcher.Constraint("DistanceX", 9, 1, 9, 2, 54.0),
    Sketcher.Constraint("DistanceY", -1, 1, 6, 2, 204.0),
    Sketcher.Constraint("DistanceX", 14, 2, 7, 2, 10.0),
    Sketcher.Constraint("DistanceX", 12, 2, 18, 2, 10.0),
    Sketcher.Constraint("Distance", 12, 34.669),
    Sketcher.Constraint("DistanceY", 15, 2, 15, 1, 117.4314),
    Sketcher.Constraint("DistanceY", 20, 2, 11, 2, 66.201),
    Sketcher.Constraint("DistanceX", -1, 1, 0, 2, 50.9453),
])
pocket6 = body.newObject("PartDesign::Pocket", "Pocket005")
pocket6.Profile = sketch7
pocket6.Type = "ThroughAll"
doc.recompute()

chamfer2 = body.newObject("PartDesign::Chamfer", "Chamfer001")
chamfer2.Base = (pocket6, edges_at(pocket6, [
    (50.945, 20, 3.25),
    (216.945, 20, 3.25),
    (151.445, 164.485, 3.25),
    (151.445, 142.5, 3.25),
    (216.945, 204, 3.25),
    (50.945, 204, 3.25),
    (40.945, 53.284, 3.25),
    (40.945, 170.716, 3.25),
    (226.945, 170.716, 3.25),
    (226.945, 53.284, 3.25),
]))
chamfer2.Size = 4

doc.recompute()
